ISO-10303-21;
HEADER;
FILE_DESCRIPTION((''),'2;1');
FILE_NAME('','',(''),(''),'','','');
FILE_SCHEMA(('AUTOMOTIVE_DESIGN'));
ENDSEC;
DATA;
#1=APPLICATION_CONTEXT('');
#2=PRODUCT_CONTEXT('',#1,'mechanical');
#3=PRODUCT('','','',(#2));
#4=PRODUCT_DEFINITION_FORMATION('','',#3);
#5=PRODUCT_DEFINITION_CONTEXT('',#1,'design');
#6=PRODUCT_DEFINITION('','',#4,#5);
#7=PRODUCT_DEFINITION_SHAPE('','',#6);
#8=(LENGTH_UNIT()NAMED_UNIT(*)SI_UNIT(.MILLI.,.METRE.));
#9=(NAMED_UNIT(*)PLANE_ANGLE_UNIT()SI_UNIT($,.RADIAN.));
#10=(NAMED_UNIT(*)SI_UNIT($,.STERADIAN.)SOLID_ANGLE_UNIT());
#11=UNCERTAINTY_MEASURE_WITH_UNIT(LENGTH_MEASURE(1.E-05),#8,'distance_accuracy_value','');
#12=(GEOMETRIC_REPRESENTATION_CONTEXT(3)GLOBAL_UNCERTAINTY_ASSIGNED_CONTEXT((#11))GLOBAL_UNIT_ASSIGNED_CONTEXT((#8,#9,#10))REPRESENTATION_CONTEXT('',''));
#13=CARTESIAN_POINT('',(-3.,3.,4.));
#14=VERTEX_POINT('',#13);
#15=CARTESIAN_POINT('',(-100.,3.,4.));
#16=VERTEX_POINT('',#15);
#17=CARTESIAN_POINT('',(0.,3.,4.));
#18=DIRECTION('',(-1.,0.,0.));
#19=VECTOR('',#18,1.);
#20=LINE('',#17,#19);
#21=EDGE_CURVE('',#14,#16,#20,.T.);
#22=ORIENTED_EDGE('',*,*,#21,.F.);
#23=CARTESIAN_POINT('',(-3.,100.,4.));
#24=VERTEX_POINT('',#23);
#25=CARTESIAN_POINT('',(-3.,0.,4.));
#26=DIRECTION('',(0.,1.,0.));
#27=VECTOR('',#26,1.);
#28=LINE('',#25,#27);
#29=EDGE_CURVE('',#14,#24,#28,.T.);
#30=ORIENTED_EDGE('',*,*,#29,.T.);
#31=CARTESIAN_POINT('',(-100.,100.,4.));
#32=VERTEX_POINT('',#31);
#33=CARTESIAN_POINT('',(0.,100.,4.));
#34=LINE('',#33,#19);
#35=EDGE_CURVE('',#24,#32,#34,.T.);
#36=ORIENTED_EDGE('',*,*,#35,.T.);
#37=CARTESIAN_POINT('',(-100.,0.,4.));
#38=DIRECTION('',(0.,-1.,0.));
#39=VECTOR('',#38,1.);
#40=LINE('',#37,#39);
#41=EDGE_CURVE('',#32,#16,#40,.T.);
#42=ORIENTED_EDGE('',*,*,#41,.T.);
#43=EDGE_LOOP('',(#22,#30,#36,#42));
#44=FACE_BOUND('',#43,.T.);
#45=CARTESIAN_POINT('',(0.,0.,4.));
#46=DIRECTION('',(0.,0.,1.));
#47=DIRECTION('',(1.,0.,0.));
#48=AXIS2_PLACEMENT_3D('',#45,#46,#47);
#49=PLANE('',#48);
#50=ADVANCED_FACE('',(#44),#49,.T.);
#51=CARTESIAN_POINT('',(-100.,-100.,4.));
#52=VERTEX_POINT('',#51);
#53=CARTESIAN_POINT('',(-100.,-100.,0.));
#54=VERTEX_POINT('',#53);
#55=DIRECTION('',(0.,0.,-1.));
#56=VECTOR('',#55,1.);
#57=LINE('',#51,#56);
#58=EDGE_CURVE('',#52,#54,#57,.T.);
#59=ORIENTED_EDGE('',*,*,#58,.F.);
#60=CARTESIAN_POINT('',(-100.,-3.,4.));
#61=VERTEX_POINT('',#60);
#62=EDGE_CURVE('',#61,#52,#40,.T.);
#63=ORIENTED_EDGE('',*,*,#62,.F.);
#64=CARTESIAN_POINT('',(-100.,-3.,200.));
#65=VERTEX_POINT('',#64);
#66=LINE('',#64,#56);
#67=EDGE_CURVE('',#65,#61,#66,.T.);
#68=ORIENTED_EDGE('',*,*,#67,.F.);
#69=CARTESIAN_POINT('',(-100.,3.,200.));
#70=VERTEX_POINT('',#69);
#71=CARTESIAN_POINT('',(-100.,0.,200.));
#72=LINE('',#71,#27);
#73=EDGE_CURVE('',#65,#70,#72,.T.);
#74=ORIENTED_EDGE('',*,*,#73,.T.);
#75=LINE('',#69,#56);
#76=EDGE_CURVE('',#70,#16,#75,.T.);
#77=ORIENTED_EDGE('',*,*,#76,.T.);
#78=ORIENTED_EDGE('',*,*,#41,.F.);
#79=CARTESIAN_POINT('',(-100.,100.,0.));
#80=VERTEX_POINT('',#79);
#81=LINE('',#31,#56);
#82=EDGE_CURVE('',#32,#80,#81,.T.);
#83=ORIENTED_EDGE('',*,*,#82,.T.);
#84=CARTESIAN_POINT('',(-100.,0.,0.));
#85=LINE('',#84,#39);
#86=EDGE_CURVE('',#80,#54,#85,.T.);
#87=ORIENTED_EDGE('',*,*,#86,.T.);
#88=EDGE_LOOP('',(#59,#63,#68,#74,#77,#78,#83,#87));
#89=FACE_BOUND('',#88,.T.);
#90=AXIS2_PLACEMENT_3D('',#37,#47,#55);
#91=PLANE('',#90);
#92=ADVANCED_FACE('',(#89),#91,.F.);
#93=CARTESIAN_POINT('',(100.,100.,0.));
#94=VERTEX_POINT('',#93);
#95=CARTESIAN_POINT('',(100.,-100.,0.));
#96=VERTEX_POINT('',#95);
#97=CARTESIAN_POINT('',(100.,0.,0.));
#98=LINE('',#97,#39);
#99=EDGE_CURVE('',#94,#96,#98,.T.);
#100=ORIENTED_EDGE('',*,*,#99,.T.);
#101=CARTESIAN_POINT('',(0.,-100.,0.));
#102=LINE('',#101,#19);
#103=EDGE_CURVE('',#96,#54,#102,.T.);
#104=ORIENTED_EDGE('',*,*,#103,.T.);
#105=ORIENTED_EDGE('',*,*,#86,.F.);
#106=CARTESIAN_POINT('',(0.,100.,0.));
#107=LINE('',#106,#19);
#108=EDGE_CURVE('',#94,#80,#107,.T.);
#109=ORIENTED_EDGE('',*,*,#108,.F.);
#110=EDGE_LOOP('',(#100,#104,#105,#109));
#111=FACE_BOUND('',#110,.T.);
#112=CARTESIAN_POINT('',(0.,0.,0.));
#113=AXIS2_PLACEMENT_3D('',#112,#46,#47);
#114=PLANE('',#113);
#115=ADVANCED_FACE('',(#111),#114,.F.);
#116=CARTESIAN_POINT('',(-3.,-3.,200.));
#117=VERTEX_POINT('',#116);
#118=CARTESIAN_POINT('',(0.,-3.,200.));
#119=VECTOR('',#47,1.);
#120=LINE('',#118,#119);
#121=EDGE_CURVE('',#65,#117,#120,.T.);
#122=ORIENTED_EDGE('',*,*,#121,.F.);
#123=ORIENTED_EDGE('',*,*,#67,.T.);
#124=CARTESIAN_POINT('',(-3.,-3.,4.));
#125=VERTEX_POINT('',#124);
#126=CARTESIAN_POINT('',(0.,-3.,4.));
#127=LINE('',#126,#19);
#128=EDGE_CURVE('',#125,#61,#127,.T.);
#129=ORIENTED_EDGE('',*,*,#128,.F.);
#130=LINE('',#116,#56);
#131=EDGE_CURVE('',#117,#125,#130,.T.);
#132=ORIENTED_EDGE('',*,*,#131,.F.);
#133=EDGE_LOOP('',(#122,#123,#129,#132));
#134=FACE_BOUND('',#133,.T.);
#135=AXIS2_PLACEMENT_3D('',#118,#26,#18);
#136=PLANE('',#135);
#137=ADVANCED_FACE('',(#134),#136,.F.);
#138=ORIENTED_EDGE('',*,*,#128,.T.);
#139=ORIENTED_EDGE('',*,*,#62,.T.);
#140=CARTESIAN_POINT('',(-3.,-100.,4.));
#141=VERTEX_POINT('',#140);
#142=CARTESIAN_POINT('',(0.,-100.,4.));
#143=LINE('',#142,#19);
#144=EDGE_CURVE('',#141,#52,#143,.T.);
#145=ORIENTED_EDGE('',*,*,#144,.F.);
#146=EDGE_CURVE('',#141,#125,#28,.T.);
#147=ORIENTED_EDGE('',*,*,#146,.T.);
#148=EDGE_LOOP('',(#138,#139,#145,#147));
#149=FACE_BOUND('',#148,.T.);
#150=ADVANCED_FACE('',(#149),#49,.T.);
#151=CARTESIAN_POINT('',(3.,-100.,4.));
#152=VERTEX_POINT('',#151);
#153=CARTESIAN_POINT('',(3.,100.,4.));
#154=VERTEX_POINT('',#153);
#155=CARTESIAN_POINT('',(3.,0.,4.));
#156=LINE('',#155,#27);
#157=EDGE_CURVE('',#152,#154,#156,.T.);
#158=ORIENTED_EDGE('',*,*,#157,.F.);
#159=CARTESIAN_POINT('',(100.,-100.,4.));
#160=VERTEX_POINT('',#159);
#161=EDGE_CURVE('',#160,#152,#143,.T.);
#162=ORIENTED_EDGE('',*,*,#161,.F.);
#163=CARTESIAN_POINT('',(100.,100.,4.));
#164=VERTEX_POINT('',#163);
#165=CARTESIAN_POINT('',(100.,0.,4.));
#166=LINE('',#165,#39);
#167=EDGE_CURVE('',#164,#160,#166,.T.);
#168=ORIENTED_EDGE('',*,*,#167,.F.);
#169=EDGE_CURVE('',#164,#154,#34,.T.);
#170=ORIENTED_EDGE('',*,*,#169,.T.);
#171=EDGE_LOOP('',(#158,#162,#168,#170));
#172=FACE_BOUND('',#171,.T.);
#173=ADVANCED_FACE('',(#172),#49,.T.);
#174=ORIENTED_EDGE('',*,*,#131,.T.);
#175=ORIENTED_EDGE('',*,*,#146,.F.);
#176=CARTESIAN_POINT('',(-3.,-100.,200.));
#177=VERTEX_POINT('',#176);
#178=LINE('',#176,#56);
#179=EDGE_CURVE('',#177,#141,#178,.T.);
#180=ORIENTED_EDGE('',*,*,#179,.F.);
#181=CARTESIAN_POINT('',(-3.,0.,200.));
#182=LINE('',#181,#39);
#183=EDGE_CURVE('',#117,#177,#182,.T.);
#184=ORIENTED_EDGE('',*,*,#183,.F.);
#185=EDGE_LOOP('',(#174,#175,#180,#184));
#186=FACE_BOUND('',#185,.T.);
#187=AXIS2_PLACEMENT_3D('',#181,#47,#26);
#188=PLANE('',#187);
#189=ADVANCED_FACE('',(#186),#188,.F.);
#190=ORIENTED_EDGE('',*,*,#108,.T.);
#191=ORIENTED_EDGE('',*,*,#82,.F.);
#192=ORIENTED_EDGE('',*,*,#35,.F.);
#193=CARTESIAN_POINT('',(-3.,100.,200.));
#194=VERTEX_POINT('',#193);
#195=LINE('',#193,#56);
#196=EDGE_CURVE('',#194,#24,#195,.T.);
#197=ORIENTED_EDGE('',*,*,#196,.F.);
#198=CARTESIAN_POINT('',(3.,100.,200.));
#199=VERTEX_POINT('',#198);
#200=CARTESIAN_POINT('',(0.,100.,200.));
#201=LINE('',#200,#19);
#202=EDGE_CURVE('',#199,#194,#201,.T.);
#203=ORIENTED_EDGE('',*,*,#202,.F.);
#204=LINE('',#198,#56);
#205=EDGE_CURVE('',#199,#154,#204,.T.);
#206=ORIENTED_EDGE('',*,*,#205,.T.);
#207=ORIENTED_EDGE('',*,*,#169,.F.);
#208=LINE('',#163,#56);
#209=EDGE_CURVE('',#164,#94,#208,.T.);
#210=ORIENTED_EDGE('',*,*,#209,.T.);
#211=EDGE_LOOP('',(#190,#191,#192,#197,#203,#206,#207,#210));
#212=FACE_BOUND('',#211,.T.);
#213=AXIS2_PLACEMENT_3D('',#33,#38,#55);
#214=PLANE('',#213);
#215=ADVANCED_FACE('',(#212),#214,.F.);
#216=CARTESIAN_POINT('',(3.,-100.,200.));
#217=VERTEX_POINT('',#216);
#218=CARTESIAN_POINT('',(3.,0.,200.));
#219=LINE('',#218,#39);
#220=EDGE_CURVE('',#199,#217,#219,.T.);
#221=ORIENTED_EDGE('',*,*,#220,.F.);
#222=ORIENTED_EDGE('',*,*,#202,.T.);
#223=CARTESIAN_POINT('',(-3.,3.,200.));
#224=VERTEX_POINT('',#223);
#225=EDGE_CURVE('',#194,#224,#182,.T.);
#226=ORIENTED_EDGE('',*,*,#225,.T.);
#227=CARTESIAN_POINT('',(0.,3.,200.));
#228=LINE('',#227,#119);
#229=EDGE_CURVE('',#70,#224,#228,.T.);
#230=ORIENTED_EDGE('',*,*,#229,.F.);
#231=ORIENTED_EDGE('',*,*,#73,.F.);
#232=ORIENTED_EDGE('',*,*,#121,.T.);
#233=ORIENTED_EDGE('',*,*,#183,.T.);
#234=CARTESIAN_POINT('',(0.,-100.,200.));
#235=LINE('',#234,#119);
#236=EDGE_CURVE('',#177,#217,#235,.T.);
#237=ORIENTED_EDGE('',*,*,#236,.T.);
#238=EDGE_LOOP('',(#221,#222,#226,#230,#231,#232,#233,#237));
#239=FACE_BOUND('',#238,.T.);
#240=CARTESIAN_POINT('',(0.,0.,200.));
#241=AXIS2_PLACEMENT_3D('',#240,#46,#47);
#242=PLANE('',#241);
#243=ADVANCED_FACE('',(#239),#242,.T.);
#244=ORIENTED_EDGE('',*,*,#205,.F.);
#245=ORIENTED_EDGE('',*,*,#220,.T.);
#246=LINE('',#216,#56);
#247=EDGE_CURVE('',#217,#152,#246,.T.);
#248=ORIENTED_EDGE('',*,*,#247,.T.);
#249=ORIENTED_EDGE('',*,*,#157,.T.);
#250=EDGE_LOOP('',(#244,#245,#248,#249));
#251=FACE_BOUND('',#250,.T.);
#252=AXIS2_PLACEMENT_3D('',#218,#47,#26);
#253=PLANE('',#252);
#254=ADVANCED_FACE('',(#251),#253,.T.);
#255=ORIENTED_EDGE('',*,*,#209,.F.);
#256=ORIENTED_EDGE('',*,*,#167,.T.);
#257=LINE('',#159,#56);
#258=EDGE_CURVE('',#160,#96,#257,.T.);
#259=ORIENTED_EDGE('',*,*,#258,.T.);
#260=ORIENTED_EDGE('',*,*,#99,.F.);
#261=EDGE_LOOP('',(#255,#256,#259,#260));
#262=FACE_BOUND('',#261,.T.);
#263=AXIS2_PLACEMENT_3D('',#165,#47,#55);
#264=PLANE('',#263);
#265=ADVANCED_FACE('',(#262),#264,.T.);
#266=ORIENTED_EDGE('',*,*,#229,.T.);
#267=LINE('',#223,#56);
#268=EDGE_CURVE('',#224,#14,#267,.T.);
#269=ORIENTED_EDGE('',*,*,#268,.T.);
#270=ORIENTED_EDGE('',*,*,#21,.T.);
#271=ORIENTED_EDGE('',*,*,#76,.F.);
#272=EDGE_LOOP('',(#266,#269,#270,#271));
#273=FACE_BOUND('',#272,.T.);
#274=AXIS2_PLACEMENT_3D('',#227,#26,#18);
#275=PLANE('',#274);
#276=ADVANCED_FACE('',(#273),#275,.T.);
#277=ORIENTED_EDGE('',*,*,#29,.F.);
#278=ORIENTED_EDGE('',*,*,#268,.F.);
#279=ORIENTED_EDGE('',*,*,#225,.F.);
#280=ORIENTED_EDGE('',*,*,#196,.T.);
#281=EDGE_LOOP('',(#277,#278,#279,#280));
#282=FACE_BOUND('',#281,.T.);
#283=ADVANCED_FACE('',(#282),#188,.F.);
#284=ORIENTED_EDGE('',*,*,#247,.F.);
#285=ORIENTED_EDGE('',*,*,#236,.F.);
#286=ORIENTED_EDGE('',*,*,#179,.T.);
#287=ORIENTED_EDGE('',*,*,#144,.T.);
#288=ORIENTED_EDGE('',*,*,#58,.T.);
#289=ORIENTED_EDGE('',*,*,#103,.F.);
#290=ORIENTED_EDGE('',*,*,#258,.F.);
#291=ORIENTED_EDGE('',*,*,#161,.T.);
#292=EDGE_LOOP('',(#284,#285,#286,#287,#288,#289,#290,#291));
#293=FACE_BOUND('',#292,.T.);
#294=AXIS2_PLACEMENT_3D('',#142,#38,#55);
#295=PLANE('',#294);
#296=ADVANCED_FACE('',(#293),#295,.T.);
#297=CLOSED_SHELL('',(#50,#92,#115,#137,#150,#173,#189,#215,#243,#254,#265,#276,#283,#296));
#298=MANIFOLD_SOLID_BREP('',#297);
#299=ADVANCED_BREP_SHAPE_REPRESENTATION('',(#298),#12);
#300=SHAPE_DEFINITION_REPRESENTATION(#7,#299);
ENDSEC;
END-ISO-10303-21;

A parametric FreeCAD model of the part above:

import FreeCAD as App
import Part
import Sketcher

doc = App.newDocument("Part")
body = doc.addObject("PartDesign::Body", "Body")

sketch1 = doc.addObject("Sketcher::SketchObject", "Sketch")
body.addObject(sketch1)
sketch1.AttachmentSupport = (doc.XY_Plane, [""])
sketch1.MapMode = "FlatFace"
sketch1.addGeometry(Part.LineSegment(App.Vector(-100, 100, 0), App.Vector(-100, -100, 0)), False)
sketch1.addGeometry(Part.LineSegment(App.Vector(-100, -100, 0), App.Vector(100, -100, 0)), False)
sketch1.addGeometry(Part.LineSegment(App.Vector(100, -100, 0), App.Vector(100, 100, 0)), False)
sketch1.addGeometry(Part.LineSegment(App.Vector(100, 100, 0), App.Vector(-100, 100, 0)), False)
sketch1.addConstraint(Sketcher.Constraint("Coincident", 0, 2, 1, 1))
sketch1.addConstraint(Sketcher.Constraint("Coincident", 1, 2, 2, 1))
sketch1.addConstraint(Sketcher.Constraint("Coincident", 2, 2, 3, 1))
sketch1.addConstraint(Sketcher.Constraint("Coincident", 3, 2, 0, 1))
sketch1.addConstraint(Sketcher.Constraint("Vertical", 0))
sketch1.addConstraint(Sketcher.Constraint("Horizontal", 1))
sketch1.addConstraint(Sketcher.Constraint("Vertical", 2))
sketch1.addConstraint(Sketcher.Constraint("Horizontal", 3))
sketch1.addConstraint(Sketcher.Constraint("Symmetric", 0, 2, 2, 2, -1, 1))
sketch1.addConstraint(Sketcher.Constraint("Equal", 3, 0))
sketch1.addConstraint(Sketcher.Constraint("DistanceX", 1, 1, 1, 2, 200.0))
pad1 = doc.addObject("PartDesign::Pad", "Pad")
body.addObject(pad1)
pad1.Profile = sketch1
pad1.Length = 4

sketch2 = doc.addObject("Sketcher::SketchObject", "Sketch001")
body.addObject(sketch2)
sketch2.AttachmentSupport = (doc.XY_Plane, [""])
sketch2.MapMode = "FlatFace"
sketch2.addGeometry(Part.LineSegment(App.Vector(-100, 3, 0), App.Vector(-100, -3, 0)), False)
sketch2.addGeometry(Part.LineSegment(App.Vector(-100, -3, 0), App.Vector(-3, -3, 0)), False)
sketch2.addGeometry(Part.LineSegment(App.Vector(-3, -3, 0), App.Vector(-3, -100, 0)), False)
sketch2.addGeometry(Part.LineSegment(App.Vector(-3, -100, 0), App.Vector(3, -100, 0)), False)
sketch2.addGeometry(Part.LineSegment(App.Vector(3, -100, 0), App.Vector(3, 100, 0)), False)
sketch2.addGeometry(Part.LineSegment(App.Vector(3, 100, 0), App.Vector(-3, 100, 0)), False)
sketch2.addGeometry(Part.LineSegment(App.Vector(-3, 100, 0), App.Vector(-3, 3, 0)), False)
sketch2.addGeometry(Part.LineSegment(App.Vector(-3, 3, 0), App.Vector(-100, 3, 0)), False)
sketch2.addConstraint(Sketcher.Constraint("Coincident", 0, 2, 1, 1))
sketch2.addConstraint(Sketcher.Constraint("Coincident", 1, 2, 2, 1))
sketch2.addConstraint(Sketcher.Constraint("Coincident", 2, 2, 3, 1))
sketch2.addConstraint(Sketcher.Constraint("Coincident", 3, 2, 4, 1))
sketch2.addConstraint(Sketcher.Constraint("Coincident", 4, 2, 5, 1))
sketch2.addConstraint(Sketcher.Constraint("Coincident", 5, 2, 6, 1))
sketch2.addConstraint(Sketcher.Constraint("Coincident", 6, 2, 7, 1))
sketch2.addConstraint(Sketcher.Constraint("Coincident", 7, 2, 0, 1))
sketch2.addConstraint(Sketcher.Constraint("Vertical", 0))
sketch2.addConstraint(Sketcher.Constraint("Horizontal", 1))
sketch2.addConstraint(Sketcher.Constraint("Vertical", 2))
sketch2.addConstraint(Sketcher.Constraint("Horizontal", 3))
sketch2.addConstraint(Sketcher.Constraint("Vertical", 4))
sketch2.addConstraint(Sketcher.Constraint("Horizontal", 5))
sketch2.addConstraint(Sketcher.Constraint("Vertical", 6))
sketch2.addConstraint(Sketcher.Constraint("Horizontal", 7))
sketch2.addConstraint(Sketcher.Constraint("Symmetric", 2, 2, 4, 2, -1, 1))
sketch2.addConstraint(Sketcher.Constraint("Symmetric", 1, 2, 6, 2, -1))
sketch2.addConstraint(Sketcher.Constraint("Equal", 5, 0))
sketch2.addConstraint(Sketcher.Constraint("Equal", 7, 2))
sketch2.addConstraint(Sketcher.Constraint("DistanceX", 1, 1, 1, 2, 97.0))
sketch2.addConstraint(Sketcher.Constraint("DistanceX", 3, 1, 3, 2, 6.0))
pad2 = doc.addObject("PartDesign::Pad", "Pad001")
body.addObject(pad2)
pad2.Profile = sketch2
pad2.Length = 200

doc.recompute()
